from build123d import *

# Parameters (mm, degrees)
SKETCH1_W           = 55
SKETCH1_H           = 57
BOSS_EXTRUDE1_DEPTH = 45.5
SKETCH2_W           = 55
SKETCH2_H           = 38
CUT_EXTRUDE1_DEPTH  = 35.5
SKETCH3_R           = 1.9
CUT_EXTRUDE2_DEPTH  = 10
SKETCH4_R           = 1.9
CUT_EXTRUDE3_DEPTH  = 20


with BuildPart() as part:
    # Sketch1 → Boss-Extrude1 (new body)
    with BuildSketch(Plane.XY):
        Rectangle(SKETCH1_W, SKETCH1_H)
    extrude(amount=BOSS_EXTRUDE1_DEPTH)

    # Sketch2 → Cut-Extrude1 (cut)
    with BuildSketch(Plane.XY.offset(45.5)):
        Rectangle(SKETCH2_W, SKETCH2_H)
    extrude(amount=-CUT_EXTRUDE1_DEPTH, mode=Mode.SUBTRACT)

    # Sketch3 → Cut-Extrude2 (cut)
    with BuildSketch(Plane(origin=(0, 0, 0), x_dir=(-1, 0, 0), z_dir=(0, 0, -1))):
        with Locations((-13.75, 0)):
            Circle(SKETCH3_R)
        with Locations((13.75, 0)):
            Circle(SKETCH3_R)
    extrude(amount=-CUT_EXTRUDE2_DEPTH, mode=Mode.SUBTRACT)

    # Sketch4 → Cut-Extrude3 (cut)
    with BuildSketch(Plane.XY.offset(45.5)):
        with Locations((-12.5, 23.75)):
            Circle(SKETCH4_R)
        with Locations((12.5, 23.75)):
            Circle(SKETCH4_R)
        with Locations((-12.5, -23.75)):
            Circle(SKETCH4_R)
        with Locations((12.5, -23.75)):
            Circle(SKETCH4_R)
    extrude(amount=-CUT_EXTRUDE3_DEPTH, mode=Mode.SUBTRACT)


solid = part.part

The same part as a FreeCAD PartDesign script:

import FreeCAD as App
import Part
import Sketcher
from FreeCAD import Vector
Q = App.Units.Quantity

doc = App.newDocument("Part")
params = doc.addObject("Spreadsheet::Sheet", "Params")
for row, (alias, value) in enumerate([
    ("sketch1_width", "55 mm"),
    ("sketch1_height", "57 mm"),
    ("pad1_length", "45.5 mm"),
    ("sketch2_width", "55 mm"),
    ("sketch2_height", "38 mm"),
    ("pocket1_length", "35.5 mm"),
    ("sketch3_diameter", "3.8 mm"),
    ("pocket2_length", "10 mm"),
    ("sketch4_diameter", "3.8 mm"),
    ("pocket3_length", "20 mm"),
], start=1):
    params.set(f"A{row}", alias)
    params.set(f"B{row}", "=" + value)
    params.setAlias(f"B{row}", alias)

body = doc.addObject("PartDesign::Body", "Body")

sketch1 = doc.addObject("Sketcher::SketchObject", "Sketch")
body.addObject(sketch1)
sketch1.AttachmentSupport = (doc.XY_Plane, [""])
sketch1.MapMode = "FlatFace"
sketch1.addGeometry(Part.LineSegment(Vector(-28, 28, 0), Vector(-28, -28, 0)), False)
sketch1.addGeometry(Part.LineSegment(Vector(-28, -28, 0), Vector(28, -28, 0)), False)
sketch1.addGeometry(Part.LineSegment(Vector(28, -28, 0), Vector(28, 28, 0)), False)
sketch1.addGeometry(Part.LineSegment(Vector(28, 28, 0), Vector(-28, 28, 0)), False)
sketch1.addConstraint(Sketcher.Constraint("Coincident", 0, 2, 1, 1))
sketch1.addConstraint(Sketcher.Constraint("Coincident", 1, 2, 2, 1))
sketch1.addConstraint(Sketcher.Constraint("Coincident", 2, 2, 3, 1))
sketch1.addConstraint(Sketcher.Constraint("Coincident", 3, 2, 0, 1))
sketch1.addConstraint(Sketcher.Constraint("Vertical", 0))
sketch1.addConstraint(Sketcher.Constraint("Horizontal", 1))
sketch1.addConstraint(Sketcher.Constraint("Vertical", 2))
sketch1.addConstraint(Sketcher.Constraint("Horizontal", 3))
sketch1.addConstraint(Sketcher.Constraint("Symmetric", 0, 2, 2, 2, -1, 1))
sketch1.addConstraint(Sketcher.Constraint("DistanceX", 1, 1, 1, 2, Q("55 mm")))
sketch1.addConstraint(Sketcher.Constraint("DistanceY", 0, 2, 0, 1, Q("57 mm")))
sketch1.setExpression("Constraints[9]", "Params.sketch1_width")
sketch1.setExpression("Constraints[10]", "Params.sketch1_height")
pad1 = doc.addObject("PartDesign::Pad", "Pad")
body.addObject(pad1)
pad1.Profile = sketch1
pad1.setExpression("Length", "Params.pad1_length")

sketch2 = doc.addObject("Sketcher::SketchObject", "Sketch001")
body.addObject(sketch2)
sketch2.AttachmentSupport = (doc.XY_Plane, [""])
sketch2.MapMode = "FlatFace"
sketch2.AttachmentOffset = App.Placement(Vector(0, 0, 45.5), App.Rotation())
sketch2.addGeometry(Part.LineSegment(Vector(-28, 19, 0), Vector(-28, -19, 0)), False)
sketch2.addGeometry(Part.LineSegment(Vector(-28, -19, 0), Vector(28, -19, 0)), False)
sketch2.addGeometry(Part.LineSegment(Vector(28, -19, 0), Vector(28, 19, 0)), False)
sketch2.addGeometry(Part.LineSegment(Vector(28, 19, 0), Vector(-28, 19, 0)), False)
sketch2.addConstraint(Sketcher.Constraint("Coincident", 0, 2, 1, 1))
sketch2.addConstraint(Sketcher.Constraint("Coincident", 1, 2, 2, 1))
sketch2.addConstraint(Sketcher.Constraint("Coincident", 2, 2, 3, 1))
sketch2.addConstraint(Sketcher.Constraint("Coincident", 3, 2, 0, 1))
sketch2.addConstraint(Sketcher.Constraint("Vertical", 0))
sketch2.addConstraint(Sketcher.Constraint("Horizontal", 1))
sketch2.addConstraint(Sketcher.Constraint("Vertical", 2))
sketch2.addConstraint(Sketcher.Constraint("Horizontal", 3))
sketch2.addConstraint(Sketcher.Constraint("Symmetric", 0, 2, 2, 2, -1, 1))
sketch2.addConstraint(Sketcher.Constraint("DistanceX", 1, 1, 1, 2, Q("55 mm")))
sketch2.addConstraint(Sketcher.Constraint("DistanceY", 0, 2, 0, 1, Q("38 mm")))
sketch2.setExpression("Constraints[9]", "Params.sketch2_width")
sketch2.setExpression("Constraints[10]", "Params.sketch2_height")
pocket1 = doc.addObject("PartDesign::Pocket", "Pocket")
body.addObject(pocket1)
pocket1.Profile = sketch2
pocket1.setExpression("Length", "Params.pocket1_length")

sketch3 = doc.addObject("Sketcher::SketchObject", "Sketch002")
body.addObject(sketch3)
sketch3.AttachmentSupport = (doc.XY_Plane, [""])
sketch3.MapMode = "FlatFace"
sketch3.addGeometry(Part.Circle(Vector(13.8, 0, 0), Vector(0, 0, 1), 1.9), False)
sketch3.addGeometry(Part.Circle(Vector(-13.8, 0, 0), Vector(0, 0, 1), 1.9), False)
sketch3.addConstraint(Sketcher.Constraint("Equal", 0, 1))
sketch3.addConstraint(Sketcher.Constraint("Symmetric", 0, 3, 1, 3, -1, 1))
sketch3.addConstraint(Sketcher.Constraint("PointOnObject", 0, 3, -1))
sketch3.addConstraint(Sketcher.Constraint("Diameter", 0, Q("3.8 mm")))
sketch3.addConstraint(Sketcher.Constraint("DistanceX", 1, 3, 0, 3, Q("27.5 mm")))
sketch3.setExpression("Constraints[3]", "Params.sketch3_diameter")
pocket2 = doc.addObject("PartDesign::Pocket", "Pocket001")
body.addObject(pocket2)
pocket2.Profile = sketch3
pocket2.setExpression("Length", "Params.pocket2_length")
pocket2.Reversed = True

sketch4 = doc.addObject("Sketcher::SketchObject", "Sketch003")
body.addObject(sketch4)
sketch4.AttachmentSupport = (doc.XY_Plane, [""])
sketch4.MapMode = "FlatFace"
sketch4.AttachmentOffset = App.Placement(Vector(0, 0, 45.5), App.Rotation())
sketch4.addGeometry(Part.Circle(Vector(-12.5, 23.8, 0), Vector(0, 0, 1), 1.9), False)
sketch4.addGeometry(Part.Circle(Vector(12.5, 23.8, 0), Vector(0, 0, 1), 1.9), False)
sketch4.addGeometry(Part.Circle(Vector(-12.5, -23.8, 0), Vector(0, 0, 1), 1.9), False)
sketch4.addGeometry(Part.Circle(Vector(12.5, -23.8, 0), Vector(0, 0, 1), 1.9), False)
sketch4.addConstraint(Sketcher.Constraint("Equal", 0, 1))
sketch4.addConstraint(Sketcher.Constraint("Equal", 1, 2))
sketch4.addConstraint(Sketcher.Constraint("Equal", 2, 3))
sketch4.addConstraint(Sketcher.Constraint("Symmetric", 1, 3, 2, 3, -1, 1))
sketch4.addConstraint(Sketcher.Constraint("Symmetric", 0, 3, 3, 3, -1, 1))
sketch4.addConstraint(Sketcher.Constraint("Symmetric", 0, 3, 1, 3, -2))
sketch4.addConstraint(Sketcher.Constraint("Diameter", 0, Q("3.8 mm")))
sketch4.addConstraint(Sketcher.Constraint("DistanceX", 0, 3, 1, 3, Q("25 mm")))
sketch4.addConstraint(Sketcher.Constraint("DistanceY", 2, 3, 0, 3, Q("47.5 mm")))
sketch4.setExpression("Constraints[6]", "Params.sketch4_diameter")
pocket3 = doc.addObject("PartDesign::Pocket", "Pocket002")
body.addObject(pocket3)
pocket3.Profile = sketch4
pocket3.setExpression("Length", "Params.pocket3_length")

doc.recompute()
